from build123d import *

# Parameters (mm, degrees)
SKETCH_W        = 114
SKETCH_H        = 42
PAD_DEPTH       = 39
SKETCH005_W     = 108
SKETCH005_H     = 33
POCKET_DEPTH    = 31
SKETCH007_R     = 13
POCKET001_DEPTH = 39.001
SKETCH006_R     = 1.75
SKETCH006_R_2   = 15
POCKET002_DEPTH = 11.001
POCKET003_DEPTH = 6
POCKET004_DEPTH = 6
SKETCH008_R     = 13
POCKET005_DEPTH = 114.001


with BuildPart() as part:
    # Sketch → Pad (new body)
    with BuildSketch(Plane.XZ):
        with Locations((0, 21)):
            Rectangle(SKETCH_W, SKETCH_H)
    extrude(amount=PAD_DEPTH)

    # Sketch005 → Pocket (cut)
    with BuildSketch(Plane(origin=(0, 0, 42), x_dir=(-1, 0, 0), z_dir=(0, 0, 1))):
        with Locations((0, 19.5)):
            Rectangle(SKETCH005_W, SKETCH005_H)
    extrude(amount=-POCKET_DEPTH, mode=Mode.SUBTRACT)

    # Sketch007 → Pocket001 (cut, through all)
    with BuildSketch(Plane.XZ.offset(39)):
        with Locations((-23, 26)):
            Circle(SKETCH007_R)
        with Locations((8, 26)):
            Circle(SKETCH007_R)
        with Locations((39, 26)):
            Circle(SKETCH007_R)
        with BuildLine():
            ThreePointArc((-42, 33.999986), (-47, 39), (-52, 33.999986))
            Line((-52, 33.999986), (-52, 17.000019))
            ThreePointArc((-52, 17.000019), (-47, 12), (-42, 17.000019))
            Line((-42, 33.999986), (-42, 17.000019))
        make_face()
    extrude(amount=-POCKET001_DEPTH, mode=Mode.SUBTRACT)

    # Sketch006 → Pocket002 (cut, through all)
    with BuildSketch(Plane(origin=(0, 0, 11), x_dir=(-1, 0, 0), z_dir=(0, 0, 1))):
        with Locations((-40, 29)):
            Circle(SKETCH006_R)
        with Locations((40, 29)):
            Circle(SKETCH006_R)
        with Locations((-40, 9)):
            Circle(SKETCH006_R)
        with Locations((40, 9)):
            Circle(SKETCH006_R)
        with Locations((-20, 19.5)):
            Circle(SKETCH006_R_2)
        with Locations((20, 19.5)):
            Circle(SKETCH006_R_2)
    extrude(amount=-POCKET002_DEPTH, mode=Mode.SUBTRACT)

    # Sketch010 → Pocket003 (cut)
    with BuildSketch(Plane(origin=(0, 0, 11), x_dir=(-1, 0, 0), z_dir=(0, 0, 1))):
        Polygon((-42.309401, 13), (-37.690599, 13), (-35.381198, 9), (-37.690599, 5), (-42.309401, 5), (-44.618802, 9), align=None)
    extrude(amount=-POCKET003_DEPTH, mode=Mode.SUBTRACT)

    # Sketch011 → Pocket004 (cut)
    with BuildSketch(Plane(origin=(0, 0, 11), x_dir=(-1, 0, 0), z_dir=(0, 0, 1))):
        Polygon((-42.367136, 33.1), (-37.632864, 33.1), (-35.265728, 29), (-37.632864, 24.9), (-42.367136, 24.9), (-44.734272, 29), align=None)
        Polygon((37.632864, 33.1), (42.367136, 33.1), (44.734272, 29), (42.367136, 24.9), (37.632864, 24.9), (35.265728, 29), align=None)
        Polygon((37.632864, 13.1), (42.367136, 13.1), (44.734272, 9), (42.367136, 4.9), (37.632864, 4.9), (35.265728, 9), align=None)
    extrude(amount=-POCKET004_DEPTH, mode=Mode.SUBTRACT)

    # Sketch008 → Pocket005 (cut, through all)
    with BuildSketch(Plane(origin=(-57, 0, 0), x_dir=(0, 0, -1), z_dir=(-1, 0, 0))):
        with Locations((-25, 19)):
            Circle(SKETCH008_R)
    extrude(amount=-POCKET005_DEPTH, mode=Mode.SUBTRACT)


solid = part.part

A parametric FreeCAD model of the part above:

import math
import FreeCAD as App
import Part
import Sketcher
Q = App.Units.Quantity


def add_polygon(sketch, points):
    """Adds a closed chain of lines whose ends are joined by coincident constraints."""
    first, n = sketch.GeometryCount, len(points)
    for a, b in zip(points, points[1:] + points[:1]):
        sketch.addGeometry(Part.LineSegment(App.Vector(*a, 0), App.Vector(*b, 0)), False)
    for i in range(n):
        sketch.addConstraint(Sketcher.Constraint("Coincident", first + i, 2, first + (i + 1) % n, 1))

doc = App.newDocument("Part")
body = doc.addObject("PartDesign::Body", "Body")

# Sketch on XZ plane
sketch1 = doc.addObject("Sketcher::SketchObject", "Sketch")
body.addObject(sketch1)
sketch1.AttachmentSupport = (doc.XZ_Plane, [""])
sketch1.MapMode = "FlatFace"
add_polygon(sketch1, [(-57, 42), (-57, 0), (57, 0), (57, 42)])  # lines 0-3
sketch1.addConstraint([
    Sketcher.Constraint("Vertical", 0),
    Sketcher.Constraint("Horizontal", 1),
    Sketcher.Constraint("Vertical", 2),
    Sketcher.Constraint("Horizontal", 3),
    Sketcher.Constraint("Symmetric", 0, 2, 1, 2, -1, 1),
    Sketcher.Constraint("DistanceX", 1, 1, 1, 2, Q("114 mm")),
    Sketcher.Constraint("DistanceY", 0, 2, 0, 1, Q("42 mm")),
])
pad1 = doc.addObject("PartDesign::Pad", "Pad")
body.addObject(pad1)
pad1.Profile = sketch1
pad1.Length = 39

# Sketch on XY plane
sketch2 = doc.addObject("Sketcher::SketchObject", "Sketch001")
body.addObject(sketch2)
sketch2.AttachmentSupport = (doc.XY_Plane, [""])
sketch2.MapMode = "FlatFace"
sketch2.AttachmentOffset = App.Placement(App.Vector(0, 0, 42), App.Rotation())
add_polygon(sketch2, [(54, -36), (54, -3), (-54, -3), (-54, -36)])  # lines 0-3
sketch2.addConstraint([
    Sketcher.Constraint("Vertical", 0),
    Sketcher.Constraint("Horizontal", 1),
    Sketcher.Constraint("Vertical", 2),
    Sketcher.Constraint("Horizontal", 3),
    Sketcher.Constraint("DistanceX", 1, 2, 1, 1, Q("108 mm")),
    Sketcher.Constraint("DistanceY", 0, 1, 0, 2, Q("33 mm")),
    Sketcher.Constraint("DistanceX", -1, 1, 0, 2, Q("54 mm")),
    Sketcher.Constraint("DistanceY", 0, 2, -1, 1, Q("3 mm")),
])
pocket1 = doc.addObject("PartDesign::Pocket", "Pocket")
body.addObject(pocket1)
pocket1.Profile = sketch2
pocket1.Length = 31

# Sketch on XZ plane
sketch3 = doc.addObject("Sketcher::SketchObject", "Sketch002")
body.addObject(sketch3)
sketch3.AttachmentSupport = (doc.XZ_Plane, [""])
sketch3.MapMode = "FlatFace"
sketch3.AttachmentOffset = App.Placement(App.Vector(0, 0, 39), App.Rotation())
sketch3.addGeometry([
    Part.Circle(App.Vector(-23, 26, 0), App.Vector(0, 0, 1), 13),  # 0
    Part.Circle(App.Vector(8, 26, 0), App.Vector(0, 0, 1), 13),  # 1
    Part.Circle(App.Vector(39, 26, 0), App.Vector(0, 0, 1), 13),  # 2
    Part.ArcOfCircle(Part.Circle(App.Vector(-47, 34, 0), App.Vector(0, 0, 1), 5), math.radians(-0.00016), math.radians(180.00016)),  # 3
    Part.LineSegment(App.Vector(-52, 33.999986, 0), App.Vector(-52, 17.000019, 0)),  # 4
    Part.ArcOfCircle(Part.Circle(App.Vector(-47, 17, 0), App.Vector(0, 0, 1), 5), math.radians(179.999782), math.radians(360.000218)),  # 5
    Part.LineSegment(App.Vector(-42, 17.000019, 0), App.Vector(-42, 33.999986, 0)),  # 6
], False)
sketch3.addConstraint([
    Sketcher.Constraint("Coincident", 3, 2, 4, 1),
    Sketcher.Constraint("Coincident", 4, 2, 5, 1),
    Sketcher.Constraint("Coincident", 5, 2, 6, 1),
    Sketcher.Constraint("Coincident", 6, 2, 3, 1),
    Sketcher.Constraint("Vertical", 4),
    Sketcher.Constraint("Vertical", 6),
    Sketcher.Constraint("Equal", 0, 1),
    Sketcher.Constraint("Equal", 1, 2),
    Sketcher.Constraint("Horizontal", 0, 3, 1, 3),
    Sketcher.Constraint("Horizontal", 1, 3, 2, 3),
    Sketcher.Constraint("Horizontal", 4, 2, 5, 2),
    Sketcher.Constraint("Horizontal", 3, 2, 6, 2),
    Sketcher.Constraint("Diameter", 0, Q("26 mm")),
    Sketcher.Constraint("Radius", 3, Q("5 mm")),
    Sketcher.Constraint("DistanceX", 0, 3, -1, 1, Q("23 mm")),
    Sketcher.Constraint("DistanceY", -1, 1, 0, 3, Q("26 mm")),
    Sketcher.Constraint("DistanceX", -1, 1, 1, 3, Q("8 mm")),
    Sketcher.Constraint("DistanceX", -1, 1, 2, 3, Q("39 mm")),
    Sketcher.Constraint("DistanceX", 3, 3, -1, 1, Q("47 mm")),
    Sketcher.Constraint("DistanceY", -1, 1, 3, 3, Q("34 mm")),
    Sketcher.Constraint("DistanceY", -1, 1, 5, 3, Q("17 mm")),
    Sketcher.Constraint("DistanceY", 4, 2, 4, 1, Q("16.999967 mm")),
    Sketcher.Constraint("DistanceY", -1, 1, 4, 2, Q("17.000019 mm")),
])
pocket2 = doc.addObject("PartDesign::Pocket", "Pocket001")
body.addObject(pocket2)
pocket2.Profile = sketch3
pocket2.Type = "ThroughAll"

# Sketch on XY plane
sketch4 = doc.addObject("Sketcher::SketchObject", "Sketch003")
body.addObject(sketch4)
sketch4.AttachmentSupport = (doc.XY_Plane, [""])
sketch4.MapMode = "FlatFace"
sketch4.AttachmentOffset = App.Placement(App.Vector(0, 0, 11), App.Rotation())
sketch4.addGeometry([
    Part.Circle(App.Vector(40, -29, 0), App.Vector(0, 0, 1), 1.75),  # 0
    Part.Circle(App.Vector(-40, -29, 0), App.Vector(0, 0, 1), 1.75),  # 1
    Part.Circle(App.Vector(40, -9, 0), App.Vector(0, 0, 1), 1.75),  # 2
    Part.Circle(App.Vector(-40, -9, 0), App.Vector(0, 0, 1), 1.75),  # 3
    Part.Circle(App.Vector(20, -19.5, 0), App.Vector(0, 0, 1), 15),  # 4
    Part.Circle(App.Vector(-20, -19.5, 0), App.Vector(0, 0, 1), 15),  # 5
], False)
sketch4.addConstraint([
    Sketcher.Constraint("Equal", 0, 1),
    Sketcher.Constraint("Equal", 1, 2),
    Sketcher.Constraint("Equal", 2, 3),
    Sketcher.Constraint("Equal", 4, 5),
    Sketcher.Constraint("Symmetric", 0, 3, 1, 3, -2),
    Sketcher.Constraint("Symmetric", 2, 3, 3, 3, -2),
    Sketcher.Constraint("Symmetric", 4, 3, 5, 3, -2),
    Sketcher.Constraint("Vertical", 0, 3, 2, 3),
    Sketcher.Constraint("Diameter", 4, Q("30 mm")),
    Sketcher.Constraint("Diameter", 0, Q("3.5 mm")),
    Sketcher.Constraint("DistanceX", -1, 1, 0, 3, Q("40 mm")),
    Sketcher.Constraint("DistanceY", 0, 3, -1, 1, Q("29 mm")),
    Sketcher.Constraint("DistanceY", 2, 3, -1, 1, Q("9 mm")),
    Sketcher.Constraint("DistanceX", -1, 1, 4, 3, Q("20 mm")),
    Sketcher.Constraint("DistanceY", 4, 3, -1, 1, Q("19.5 mm")),
])
pocket3 = doc.addObject("PartDesign::Pocket", "Pocket002")
body.addObject(pocket3)
pocket3.Profile = sketch4
pocket3.Type = "ThroughAll"

# Sketch on XY plane
sketch5 = doc.addObject("Sketcher::SketchObject", "Sketch004")
body.addObject(sketch5)
sketch5.AttachmentSupport = (doc.XY_Plane, [""])
sketch5.MapMode = "FlatFace"
sketch5.AttachmentOffset = App.Placement(App.Vector(0, 0, 11), App.Rotation())
add_polygon(sketch5, [(37.690599, -13), (42.309401, -13), (44.618802, -9), (42.309401, -5), (37.690599, -5), (35.381198, -9)])  # lines 0-5
sketch5.addConstraint([
    Sketcher.Constraint("Horizontal", 0),
    Sketcher.Constraint("Horizontal", 3),
    Sketcher.Constraint("Parallel", 1, 4),
    Sketcher.Constraint("Parallel", 2, 5),
    Sketcher.Constraint("Horizontal", 1, 2, 4, 2),
    Sketcher.Constraint("Vertical", 0, 2, 2, 2),
    Sketcher.Constraint("Vertical", 3, 2, 5, 2),
    Sketcher.Constraint("Angle", 1, Q("60.000001 deg")),
    Sketcher.Constraint("DistanceY", 0, 2, -1, 1, Q("13 mm")),
    Sketcher.Constraint("DistanceY", 1, 2, -1, 1, Q("9 mm")),
    Sketcher.Constraint("DistanceX", -1, 1, 0, 2, Q("42.309401 mm")),
    Sketcher.Constraint("DistanceX", -1, 1, 3, 2, Q("37.690599 mm")),
])
pocket4 = doc.addObject("PartDesign::Pocket", "Pocket003")
body.addObject(pocket4)
pocket4.Profile = sketch5
pocket4.Length = 6

# Sketch on XY plane
sketch6 = doc.addObject("Sketcher::SketchObject", "Sketch005")
body.addObject(sketch6)
sketch6.AttachmentSupport = (doc.XY_Plane, [""])
sketch6.MapMode = "FlatFace"
sketch6.AttachmentOffset = App.Placement(App.Vector(0, 0, 11), App.Rotation())
add_polygon(sketch6, [(37.632864, -33.1), (42.367136, -33.1), (44.734272, -29), (42.367136, -24.9), (37.632864, -24.9), (35.265728, -29)])  # lines 0-5
add_polygon(sketch6, [(-42.367136, -33.1), (-37.632864, -33.1), (-35.265728, -29), (-37.632864, -24.9), (-42.367136, -24.9), (-44.734272, -29)])  # lines 6-11
add_polygon(sketch6, [(-42.367136, -13.1), (-37.632864, -13.1), (-35.265728, -9), (-37.632864, -4.9), (-42.367136, -4.9), (-44.734272, -9)])  # lines 12-17
sketch6.addConstraint([
    Sketcher.Constraint("Horizontal", 0),
    Sketcher.Constraint("Horizontal", 3),
    Sketcher.Constraint("Horizontal", 6),
    Sketcher.Constraint("Horizontal", 9),
    Sketcher.Constraint("Horizontal", 12),
    Sketcher.Constraint("Horizontal", 15),
    Sketcher.Constraint("Symmetric", 5, 2, 6, 2, -2),
    Sketcher.Constraint("Symmetric", 4, 2, 7, 2, -2),
    Sketcher.Constraint("Symmetric", 3, 2, 8, 2, -2),
    Sketcher.Constraint("Symmetric", 1, 2, 10, 2, -2),
    Sketcher.Constraint("Parallel", 1, 4),
    Sketcher.Constraint("Parallel", 2, 5),
    Sketcher.Constraint("Parallel", 4, 7),
    Sketcher.Constraint("Parallel", 7, 10),
    Sketcher.Constraint("Parallel", 8, 11),
    Sketcher.Constraint("Parallel", 10, 13),
    Sketcher.Constraint("Parallel", 11, 14),
    Sketcher.Constraint("Parallel", 13, 16),
    Sketcher.Constraint("Parallel", 14, 17),
    Sketcher.Constraint("Horizontal", 1, 2, 4, 2),
    Sketcher.Constraint("Horizontal", 13, 2, 16, 2),
    Sketcher.Constraint("Vertical", 0, 2, 2, 2),
    Sketcher.Constraint("Vertical", 8, 2, 12, 2),
    Sketcher.Constraint("Vertical", 7, 2, 13, 2),
    Sketcher.Constraint("Vertical", 12, 2, 14, 2),
    Sketcher.Constraint("Vertical", 11, 2, 15, 2),
    Sketcher.Constraint("Angle", 1, Q("60.000001 deg")),
    Sketcher.Constraint("DistanceY", 1, 2, -1, 1, Q("29 mm")),
    Sketcher.Constraint("DistanceY", 13, 2, -1, 1, Q("9 mm")),
    Sketcher.Constraint("DistanceX", 6, 2, 0, 2, Q("80 mm")),
    Sketcher.Constraint("DistanceY", 0, 2, -1, 1, Q("33.1 mm")),
    Sketcher.Constraint("DistanceX", 0, 1, 0, 2, Q("4.734272 mm")),
])
pocket5 = doc.addObject("PartDesign::Pocket", "Pocket004")
body.addObject(pocket5)
pocket5.Profile = sketch6
pocket5.Length = 6

# Sketch on YZ plane
sketch7 = doc.addObject("Sketcher::SketchObject", "Sketch006")
body.addObject(sketch7)
sketch7.AttachmentSupport = (doc.YZ_Plane, [""])
sketch7.MapMode = "FlatFace"
sketch7.AttachmentOffset = App.Placement(App.Vector(0, 0, -57), App.Rotation())
sketch7.addGeometry(Part.Circle(App.Vector(-19, 25, 0), App.Vector(0, 0, 1), 13), False)
sketch7.addConstraint([
    Sketcher.Constraint("Diameter", 0, Q("26 mm")),
    Sketcher.Constraint("DistanceX", 0, 3, -1, 1, Q("19 mm")),
    Sketcher.Constraint("DistanceY", -1, 1, 0, 3, Q("25 mm")),
])
pocket6 = doc.addObject("PartDesign::Pocket", "Pocket005")
body.addObject(pocket6)
pocket6.Profile = sketch7
pocket6.Type = "ThroughAll"
pocket6.Reversed = True

doc.recompute()
